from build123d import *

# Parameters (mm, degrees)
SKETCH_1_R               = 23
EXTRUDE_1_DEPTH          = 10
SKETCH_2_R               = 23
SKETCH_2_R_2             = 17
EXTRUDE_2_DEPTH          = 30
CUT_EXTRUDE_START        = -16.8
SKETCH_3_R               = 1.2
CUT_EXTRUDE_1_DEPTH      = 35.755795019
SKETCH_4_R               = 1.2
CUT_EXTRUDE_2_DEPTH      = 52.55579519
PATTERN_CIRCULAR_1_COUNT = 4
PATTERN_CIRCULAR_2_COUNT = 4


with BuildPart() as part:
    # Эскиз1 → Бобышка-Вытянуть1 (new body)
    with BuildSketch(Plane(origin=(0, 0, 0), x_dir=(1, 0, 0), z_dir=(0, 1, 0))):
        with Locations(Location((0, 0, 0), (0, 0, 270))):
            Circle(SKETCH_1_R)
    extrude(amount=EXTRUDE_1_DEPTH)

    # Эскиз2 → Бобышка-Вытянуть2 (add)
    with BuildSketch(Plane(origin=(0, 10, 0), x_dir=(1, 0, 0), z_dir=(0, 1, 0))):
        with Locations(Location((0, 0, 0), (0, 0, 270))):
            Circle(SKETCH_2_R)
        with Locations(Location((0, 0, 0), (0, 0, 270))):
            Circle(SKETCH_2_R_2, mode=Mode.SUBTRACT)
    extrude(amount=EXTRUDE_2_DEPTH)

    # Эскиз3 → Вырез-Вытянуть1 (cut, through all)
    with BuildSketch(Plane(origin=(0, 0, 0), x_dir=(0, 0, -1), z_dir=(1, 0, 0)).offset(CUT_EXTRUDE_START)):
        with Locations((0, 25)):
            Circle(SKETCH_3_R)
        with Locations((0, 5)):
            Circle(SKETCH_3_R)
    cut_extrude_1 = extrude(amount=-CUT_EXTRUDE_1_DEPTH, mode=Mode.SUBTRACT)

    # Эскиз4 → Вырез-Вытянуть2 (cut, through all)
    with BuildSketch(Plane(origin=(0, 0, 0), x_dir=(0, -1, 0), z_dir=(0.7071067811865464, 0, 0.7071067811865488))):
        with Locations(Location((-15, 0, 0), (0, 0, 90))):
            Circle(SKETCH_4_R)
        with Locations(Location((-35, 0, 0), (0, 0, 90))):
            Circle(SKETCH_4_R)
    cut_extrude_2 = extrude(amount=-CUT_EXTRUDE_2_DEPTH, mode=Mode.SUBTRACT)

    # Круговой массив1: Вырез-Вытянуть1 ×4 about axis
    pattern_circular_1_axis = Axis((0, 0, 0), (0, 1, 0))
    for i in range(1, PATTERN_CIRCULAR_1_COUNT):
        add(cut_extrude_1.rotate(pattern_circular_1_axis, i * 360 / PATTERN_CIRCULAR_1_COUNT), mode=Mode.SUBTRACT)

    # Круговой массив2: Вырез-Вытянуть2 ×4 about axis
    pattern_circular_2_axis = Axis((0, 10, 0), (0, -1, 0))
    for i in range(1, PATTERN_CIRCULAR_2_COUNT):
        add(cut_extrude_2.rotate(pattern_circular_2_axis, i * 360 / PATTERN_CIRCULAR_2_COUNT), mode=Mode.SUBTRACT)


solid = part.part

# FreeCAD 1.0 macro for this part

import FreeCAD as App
import Part
import Sketcher

V = App.Vector

doc = App.newDocument("Part")
body = doc.addObject("PartDesign::Body", "Body")

# Sketch on XZ plane
sketch1 = body.newObject("Sketcher::SketchObject", "Sketch")
sketch1.AttachmentSupport = (doc.getObject("XZ_Plane"), [""])
sketch1.MapMode = "FlatFace"
sketch1.addGeometry(Part.Circle(V(0, 0, 0), V(0, 0, 1), 23), False)
sketch1.addConstraint([
    Sketcher.Constraint("Coincident", 0, 3, -1, 1),
    Sketcher.Constraint("Diameter", 0, 46.0),
])
pad1 = body.newObject("PartDesign::Pad", "Pad")
pad1.Profile = sketch1
pad1.Length = 10
pad1.Reversed = True

# Sketch on XZ plane
sketch2 = body.newObject("Sketcher::SketchObject", "Sketch001")
sketch2.AttachmentSupport = (doc.getObject("XZ_Plane"), [""])
sketch2.MapMode = "FlatFace"
sketch2.AttachmentOffset = App.Placement(V(0, 0, -10), App.Rotation())
sketch2.addGeometry([
    Part.Circle(V(0, 0, 0), V(0, 0, 1), 23),
    Part.Circle(V(0, 0, 0), V(0, 0, 1), 17),
], False)
sketch2.addConstraint([
    Sketcher.Constraint("Coincident", 0, 3, -1, 1),
    Sketcher.Constraint("Coincident", 1, 3, -1, 1),
    Sketcher.Constraint("Diameter", 0, 46.0),
    Sketcher.Constraint("Diameter", 1, 34.0),
])
pad2 = body.newObject("PartDesign::Pad", "Pad001")
pad2.Profile = sketch2
pad2.Length = 30
pad2.Reversed = True

# Sketch on YZ plane
sketch3 = body.newObject("Sketcher::SketchObject", "Sketch002")
sketch3.AttachmentSupport = (doc.getObject("YZ_Plane"), [""])
sketch3.MapMode = "FlatFace"
sketch3.AttachmentOffset = App.Placement(V(0, 0, -16.8), App.Rotation())
sketch3.addGeometry([
    Part.Circle(V(25, 0, 0), V(0, 0, 1), 1.2),
    Part.Circle(V(5, 0, 0), V(0, 0, 1), 1.2),
], False)
sketch3.addConstraint([
    Sketcher.Constraint("Equal", 0, 1),
    Sketcher.Constraint("PointOnObject", 0, 3, -1),
    Sketcher.Constraint("PointOnObject", 1, 3, -1),
    Sketcher.Constraint("Diameter", 0, 2.4),
    Sketcher.Constraint("DistanceX", -1, 1, 0, 3, 25.0),
    Sketcher.Constraint("DistanceX", -1, 1, 1, 3, 5.0),
])
pocket1 = body.newObject("PartDesign::Pocket", "Pocket")
pocket1.Profile = sketch3
pocket1.Type = "ThroughAll"

# Sketch on an angled plane
sketch4 = body.newObject("Sketcher::SketchObject", "Sketch003")
sketch4.Placement = App.Placement(V(0, 0, 0), App.Rotation(V(0, -1, 0), V(0.707106781, 0, -0.707106781), V(0.707106781, 0, 0.707106781), "ZXY"))
sketch4.addGeometry([
    Part.Circle(V(-15, 0, 0), V(0, 0, 1), 1.2),
    Part.Circle(V(-35, 0, 0), V(0, 0, 1), 1.2),
], False)
sketch4.addConstraint([
    Sketcher.Constraint("Equal", 0, 1),
    Sketcher.Constraint("PointOnObject", 0, 3, -1),
    Sketcher.Constraint("PointOnObject", 1, 3, -1),
    Sketcher.Constraint("Diameter", 0, 2.4),
    Sketcher.Constraint("DistanceX", 0, 3, -1, 1, 15.0),
    Sketcher.Constraint("DistanceX", 1, 3, -1, 1, 35.0),
])
pocket2 = body.newObject("PartDesign::Pocket", "Pocket001")
pocket2.Profile = sketch4
pocket2.Type = "ThroughAll"
doc.recompute()

polarpattern = body.newObject("PartDesign::PolarPattern", "PolarPattern")
polarpattern.Originals = [pocket1]
polarpattern.Axis = (doc.getObject("Y_Axis"), [""])
polarpattern.Angle = 360
polarpattern.Occurrences = 4
body.Tip = polarpattern
doc.recompute()

polarpattern2 = body.newObject("PartDesign::PolarPattern", "PolarPattern001")
polarpattern2.Originals = [pocket2]
polarpattern2.Axis = (doc.getObject("Y_Axis"), [""])
polarpattern2.Angle = 360
polarpattern2.Occurrences = 4
body.Tip = polarpattern2

doc.recompute()
